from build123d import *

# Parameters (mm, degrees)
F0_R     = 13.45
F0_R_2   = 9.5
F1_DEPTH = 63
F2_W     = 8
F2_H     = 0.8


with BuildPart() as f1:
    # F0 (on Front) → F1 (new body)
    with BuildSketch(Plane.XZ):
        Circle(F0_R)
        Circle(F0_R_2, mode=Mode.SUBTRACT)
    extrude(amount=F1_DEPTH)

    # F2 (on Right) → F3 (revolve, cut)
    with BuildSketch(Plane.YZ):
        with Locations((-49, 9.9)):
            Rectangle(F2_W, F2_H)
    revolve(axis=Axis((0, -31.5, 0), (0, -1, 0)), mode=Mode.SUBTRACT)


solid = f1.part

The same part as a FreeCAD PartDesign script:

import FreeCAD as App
import Part
import Sketcher

V = App.Vector


def add_polygon(sketch, points):
    """Adds a closed chain of lines whose ends are joined by coincident constraints."""
    first, n = sketch.GeometryCount, len(points)
    for a, b in zip(points, points[1:] + points[:1]):
        sketch.addGeometry(Part.LineSegment(App.Vector(*a, 0), App.Vector(*b, 0)), False)
    for i in range(n):
        sketch.addConstraint(Sketcher.Constraint("Coincident", first + i, 2, first + (i + 1) % n, 1))

doc = App.newDocument("Part")
params = doc.addObject("Spreadsheet::Sheet", "Params")
for row, (alias, value) in enumerate([
    ("sketch1_diameter", "19 mm"),
    ("sketch1_diameter2", "26.9 mm"),
    ("pad1_length", "63 mm"),
    ("sketch2_width", "8 mm"),
    ("sketch2_height", "0.8 mm"),
    ("groove_angle", "360 deg"),
], start=1):
    params.set(f"A{row}", alias)
    params.set(f"B{row}", "=" + value)
    params.setAlias(f"B{row}", alias)

body = doc.addObject("PartDesign::Body", "Body")

# Sketch on XZ plane
sketch1 = doc.addObject("Sketcher::SketchObject", "Sketch")
body.addObject(sketch1)
sketch1.AttachmentSupport = (doc.XZ_Plane, [""])
sketch1.MapMode = "FlatFace"
sketch1.addGeometry([
    Part.Circle(V(0, 0, 0), V(0, 0, 1), 13.45),
    Part.Circle(V(0, 0, 0), V(0, 0, 1), 9.5),
], False)
sketch1.addConstraint([
    Sketcher.Constraint("Coincident", 0, 3, -1, 1),
    Sketcher.Constraint("Coincident", 1, 3, -1, 1),
    Sketcher.Constraint("Diameter", 1, 19.0),
    Sketcher.Constraint("Diameter", 0, 26.9),
])
sketch1.setExpression("Constraints[2]", "Params.sketch1_diameter")
sketch1.setExpression("Constraints[3]", "Params.sketch1_diameter2")
pad1 = doc.addObject("PartDesign::Pad", "Pad")
body.addObject(pad1)
pad1.Profile = sketch1
pad1.setExpression("Length", "Params.pad1_length")

# Sketch on YZ plane
sketch2 = doc.addObject("Sketcher::SketchObject", "Sketch001")
body.addObject(sketch2)
sketch2.AttachmentSupport = (doc.YZ_Plane, [""])
sketch2.MapMode = "FlatFace"
add_polygon(sketch2, [(-53, 10.3), (-53, 9.5), (-45, 9.5), (-45, 10.3)])  # lines 0-3
sketch2.addConstraint([
    Sketcher.Constraint("Vertical", 0),
    Sketcher.Constraint("Horizontal", 1),
    Sketcher.Constraint("Vertical", 2),
    Sketcher.Constraint("Horizontal", 3),
    Sketcher.Constraint("DistanceX", 1, 1, 1, 2, 8.0),
    Sketcher.Constraint("DistanceY", 0, 2, 0, 1, 0.8),
    Sketcher.Constraint("DistanceX", 0, 2, -1, 1, 53.0),
    Sketcher.Constraint("DistanceY", -1, 1, 0, 2, 9.5),
])
sketch2.setExpression("Constraints[8]", "Params.sketch2_width")
sketch2.setExpression("Constraints[9]", "Params.sketch2_height")
groove = doc.addObject("PartDesign::Groove", "Groove")
body.addObject(groove)
groove.Profile = sketch2
groove.ReferenceAxis = (sketch2, ["H_Axis"])
groove.setExpression("Angle", "Params.groove_angle")

doc.recompute()
